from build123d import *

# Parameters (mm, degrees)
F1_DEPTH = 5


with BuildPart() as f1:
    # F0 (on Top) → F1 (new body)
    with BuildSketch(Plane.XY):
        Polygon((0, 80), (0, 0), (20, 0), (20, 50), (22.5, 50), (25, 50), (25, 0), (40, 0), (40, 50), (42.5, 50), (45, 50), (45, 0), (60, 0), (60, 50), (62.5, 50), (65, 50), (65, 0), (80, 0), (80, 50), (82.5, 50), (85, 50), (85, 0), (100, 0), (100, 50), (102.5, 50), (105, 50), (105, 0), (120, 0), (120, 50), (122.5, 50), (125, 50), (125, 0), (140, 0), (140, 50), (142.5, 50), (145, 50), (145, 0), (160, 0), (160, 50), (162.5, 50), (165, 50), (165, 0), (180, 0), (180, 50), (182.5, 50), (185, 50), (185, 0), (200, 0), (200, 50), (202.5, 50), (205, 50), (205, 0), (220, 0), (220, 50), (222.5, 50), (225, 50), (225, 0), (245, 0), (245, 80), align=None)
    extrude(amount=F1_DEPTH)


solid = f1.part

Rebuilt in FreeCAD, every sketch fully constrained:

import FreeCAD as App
import Part
import Sketcher

V = App.Vector

doc = App.newDocument("Part")
body = doc.addObject("PartDesign::Body", "Body")

sketch1 = doc.addObject("Sketcher::SketchObject", "Sketch")
body.addObject(sketch1)
sketch1.AttachmentSupport = (doc.XY_Plane, [""])
sketch1.MapMode = "FlatFace"
sketch1.addGeometry([
    Part.LineSegment(V(0, 80, 0), V(0, 0, 0)),
    Part.LineSegment(V(0, 0, 0), V(20, 0, 0)),
    Part.LineSegment(V(20, 0, 0), V(20, 50, 0)),
    Part.LineSegment(V(20, 50, 0), V(25, 50, 0)),
    Part.LineSegment(V(25, 50, 0), V(25, 0, 0)),
    Part.LineSegment(V(25, 0, 0), V(40, 0, 0)),
    Part.LineSegment(V(40, 0, 0), V(40, 50, 0)),
    Part.LineSegment(V(40, 50, 0), V(45, 50, 0)),
    Part.LineSegment(V(45, 50, 0), V(45, 0, 0)),
    Part.LineSegment(V(45, 0, 0), V(60, 0, 0)),
    Part.LineSegment(V(60, 0, 0), V(60, 50, 0)),
    Part.LineSegment(V(60, 50, 0), V(65, 50, 0)),
    Part.LineSegment(V(65, 50, 0), V(65, 0, 0)),
    Part.LineSegment(V(65, 0, 0), V(80, 0, 0)),
    Part.LineSegment(V(80, 0, 0), V(80, 50, 0)),
    Part.LineSegment(V(80, 50, 0), V(85, 50, 0)),
    Part.LineSegment(V(85, 50, 0), V(85, 0, 0)),
    Part.LineSegment(V(85, 0, 0), V(100, 0, 0)),
    Part.LineSegment(V(100, 0, 0), V(100, 50, 0)),
    Part.LineSegment(V(100, 50, 0), V(105, 50, 0)),
    Part.LineSegment(V(105, 50, 0), V(105, 0, 0)),
    Part.LineSegment(V(105, 0, 0), V(120, 0, 0)),
    Part.LineSegment(V(120, 0, 0), V(120, 50, 0)),
    Part.LineSegment(V(120, 50, 0), V(125, 50, 0)),
    Part.LineSegment(V(125, 50, 0), V(125, 0, 0)),
    Part.LineSegment(V(125, 0, 0), V(140, 0, 0)),
    Part.LineSegment(V(140, 0, 0), V(140, 50, 0)),
    Part.LineSegment(V(140, 50, 0), V(145, 50, 0)),
    Part.LineSegment(V(145, 50, 0), V(145, 0, 0)),
    Part.LineSegment(V(145, 0, 0), V(160, 0, 0)),
    Part.LineSegment(V(160, 0, 0), V(160, 50, 0)),
    Part.LineSegment(V(160, 50, 0), V(165, 50, 0)),
    Part.LineSegment(V(165, 50, 0), V(165, 0, 0)),
    Part.LineSegment(V(165, 0, 0), V(180, 0, 0)),
    Part.LineSegment(V(180, 0, 0), V(180, 50, 0)),
    Part.LineSegment(V(180, 50, 0), V(185, 50, 0)),
    Part.LineSegment(V(185, 50, 0), V(185, 0, 0)),
    Part.LineSegment(V(185, 0, 0), V(200, 0, 0)),
    Part.LineSegment(V(200, 0, 0), V(200, 50, 0)),
    Part.LineSegment(V(200, 50, 0), V(205, 50, 0)),
    Part.LineSegment(V(205, 50, 0), V(205, 0, 0)),
    Part.LineSegment(V(205, 0, 0), V(220, 0, 0)),
    Part.LineSegment(V(220, 0, 0), V(220, 50, 0)),
    Part.LineSegment(V(220, 50, 0), V(225, 50, 0)),
    Part.LineSegment(V(225, 50, 0), V(225, 0, 0)),
    Part.LineSegment(V(225, 0, 0), V(245, 0, 0)),
    Part.LineSegment(V(245, 0, 0), V(245, 80, 0)),
    Part.LineSegment(V(245, 80, 0), V(0, 80, 0)),
], False)
sketch1.addConstraint([
    Sketcher.Constraint("Coincident", 0, 2, 1, 1),
    Sketcher.Constraint("Coincident", 1, 2, 2, 1),
    Sketcher.Constraint("Coincident", 2, 2, 3, 1),
    Sketcher.Constraint("Coincident", 3, 2, 4, 1),
    Sketcher.Constraint("Coincident", 4, 2, 5, 1),
    Sketcher.Constraint("Coincident", 5, 2, 6, 1),
    Sketcher.Constraint("Coincident", 6, 2, 7, 1),
    Sketcher.Constraint("Coincident", 7, 2, 8, 1),
    Sketcher.Constraint("Coincident", 8, 2, 9, 1),
    Sketcher.Constraint("Coincident", 9, 2, 10, 1),
    Sketcher.Constraint("Coincident", 10, 2, 11, 1),
    Sketcher.Constraint("Coincident", 11, 2, 12, 1),
    Sketcher.Constraint("Coincident", 12, 2, 13, 1),
    Sketcher.Constraint("Coincident", 13, 2, 14, 1),
    Sketcher.Constraint("Coincident", 14, 2, 15, 1),
    Sketcher.Constraint("Coincident", 15, 2, 16, 1),
    Sketcher.Constraint("Coincident", 16, 2, 17, 1),
    Sketcher.Constraint("Coincident", 17, 2, 18, 1),
    Sketcher.Constraint("Coincident", 18, 2, 19, 1),
    Sketcher.Constraint("Coincident", 19, 2, 20, 1),
    Sketcher.Constraint("Coincident", 20, 2, 21, 1),
    Sketcher.Constraint("Coincident", 21, 2, 22, 1),
    Sketcher.Constraint("Coincident", 22, 2, 23, 1),
    Sketcher.Constraint("Coincident", 23, 2, 24, 1),
    Sketcher.Constraint("Coincident", 24, 2, 25, 1),
    Sketcher.Constraint("Coincident", 25, 2, 26, 1),
    Sketcher.Constraint("Coincident", 26, 2, 27, 1),
    Sketcher.Constraint("Coincident", 27, 2, 28, 1),
    Sketcher.Constraint("Coincident", 28, 2, 29, 1),
    Sketcher.Constraint("Coincident", 29, 2, 30, 1),
    Sketcher.Constraint("Coincident", 30, 2, 31, 1),
    Sketcher.Constraint("Coincident", 31, 2, 32, 1),
    Sketcher.Constraint("Coincident", 32, 2, 33, 1),
    Sketcher.Constraint("Coincident", 33, 2, 34, 1),
    Sketcher.Constraint("Coincident", 34, 2, 35, 1),
    Sketcher.Constraint("Coincident", 35, 2, 36, 1),
    Sketcher.Constraint("Coincident", 36, 2, 37, 1),
    Sketcher.Constraint("Coincident", 37, 2, 38, 1),
    Sketcher.Constraint("Coincident", 38, 2, 39, 1),
    Sketcher.Constraint("Coincident", 39, 2, 40, 1),
    Sketcher.Constraint("Coincident", 40, 2, 41, 1),
    Sketcher.Constraint("Coincident", 41, 2, 42, 1),
    Sketcher.Constraint("Coincident", 42, 2, 43, 1),
    Sketcher.Constraint("Coincident", 43, 2, 44, 1),
    Sketcher.Constraint("Coincident", 44, 2, 45, 1),
    Sketcher.Constraint("Coincident", 45, 2, 46, 1),
    Sketcher.Constraint("Coincident", 46, 2, 47, 1),
    Sketcher.Constraint("Coincident", 47, 2, 0, 1),
    Sketcher.Constraint("Vertical", 0),
    Sketcher.Constraint("Horizontal", 1),
    Sketcher.Constraint("Vertical", 2),
    Sketcher.Constraint("Horizontal", 3),
    Sketcher.Constraint("Vertical", 4),
    Sketcher.Constraint("Horizontal", 5),
    Sketcher.Constraint("Vertical", 6),
    Sketcher.Constraint("Horizontal", 7),
    Sketcher.Constraint("Vertical", 8),
    Sketcher.Constraint("Horizontal", 9),
    Sketcher.Constraint("Vertical", 10),
    Sketcher.Constraint("Horizontal", 11),
    Sketcher.Constraint("Vertical", 12),
    Sketcher.Constraint("Horizontal", 13),
    Sketcher.Constraint("Vertical", 14),
    Sketcher.Constraint("Horizontal", 15),
    Sketcher.Constraint("Vertical", 16),
    Sketcher.Constraint("Horizontal", 17),
    Sketcher.Constraint("Vertical", 18),
    Sketcher.Constraint("Horizontal", 19),
    Sketcher.Constraint("Vertical", 20),
    Sketcher.Constraint("Horizontal", 21),
    Sketcher.Constraint("Vertical", 22),
    Sketcher.Constraint("Horizontal", 23),
    Sketcher.Constraint("Vertical", 24),
    Sketcher.Constraint("Horizontal", 25),
    Sketcher.Constraint("Vertical", 26),
    Sketcher.Constraint("Horizontal", 27),
    Sketcher.Constraint("Vertical", 28),
    Sketcher.Constraint("Horizontal", 29),
    Sketcher.Constraint("Vertical", 30),
    Sketcher.Constraint("Horizontal", 31),
    Sketcher.Constraint("Vertical", 32),
    Sketcher.Constraint("Horizontal", 33),
    Sketcher.Constraint("Vertical", 34),
    Sketcher.Constraint("Horizontal", 35),
    Sketcher.Constraint("Vertical", 36),
    Sketcher.Constraint("Horizontal", 37),
    Sketcher.Constraint("Vertical", 38),
    Sketcher.Constraint("Horizontal", 39),
    Sketcher.Constraint("Vertical", 40),
    Sketcher.Constraint("Horizontal", 41),
    Sketcher.Constraint("Vertical", 42),
    Sketcher.Constraint("Horizontal", 43),
    Sketcher.Constraint("Vertical", 44),
    Sketcher.Constraint("Horizontal", 45),
    Sketcher.Constraint("Vertical", 46),
    Sketcher.Constraint("Horizontal", 47),
    Sketcher.Constraint("Coincident", 0, 2, -1, 1),
    Sketcher.Constraint("PointOnObject", 4, 2, -1),
    Sketcher.Constraint("PointOnObject", 8, 2, -1),
    Sketcher.Constraint("PointOnObject", 12, 2, -1),
    Sketcher.Constraint("PointOnObject", 16, 2, -1),
    Sketcher.Constraint("PointOnObject", 20, 2, -1),
    Sketcher.Constraint("PointOnObject", 24, 2, -1),
    Sketcher.Constraint("PointOnObject", 28, 2, -1),
    Sketcher.Constraint("PointOnObject", 32, 2, -1),
    Sketcher.Constraint("PointOnObject", 36, 2, -1),
    Sketcher.Constraint("PointOnObject", 40, 2, -1),
    Sketcher.Constraint("PointOnObject", 44, 2, -1),
    Sketcher.Constraint("Horizontal", 3, 2, 6, 2),
    Sketcher.Constraint("Horizontal", 7, 2, 10, 2),
    Sketcher.Constraint("Horizontal", 11, 2, 14, 2),
    Sketcher.Constraint("Horizontal", 15, 2, 18, 2),
    Sketcher.Constraint("Horizontal", 19, 2, 22, 2),
    Sketcher.Constraint("Horizontal", 23, 2, 26, 2),
    Sketcher.Constraint("Horizontal", 27, 2, 30, 2),
    Sketcher.Constraint("Horizontal", 31, 2, 34, 2),
    Sketcher.Constraint("Horizontal", 35, 2, 38, 2),
    Sketcher.Constraint("Horizontal", 39, 2, 42, 2),
    Sketcher.Constraint("Equal", 3, 7),
    Sketcher.Constraint("Equal", 5, 9),
    Sketcher.Constraint("Equal", 7, 11),
    Sketcher.Constraint("Equal", 9, 13),
    Sketcher.Constraint("Equal", 11, 15),
    Sketcher.Constraint("Equal", 13, 17),
    Sketcher.Constraint("Equal", 15, 19),
    Sketcher.Constraint("Equal", 17, 21),
    Sketcher.Constraint("Equal", 19, 23),
    Sketcher.Constraint("Equal", 21, 25),
    Sketcher.Constraint("Equal", 23, 27),
    Sketcher.Constraint("Equal", 25, 29),
    Sketcher.Constraint("Equal", 27, 31),
    Sketcher.Constraint("Equal", 29, 33),
    Sketcher.Constraint("Equal", 31, 35),
    Sketcher.Constraint("Equal", 33, 37),
    Sketcher.Constraint("Equal", 35, 39),
    Sketcher.Constraint("Equal", 37, 41),
    Sketcher.Constraint("Equal", 39, 43),
    Sketcher.Constraint("Equal", 1, 45),
    Sketcher.Constraint("DistanceX", 1, 1, 1, 2, 20.0),
    Sketcher.Constraint("DistanceX", 3, 1, 3, 2, 5.0),
    Sketcher.Constraint("DistanceX", 5, 1, 5, 2, 15.0),
    Sketcher.Constraint("DistanceY", 0, 2, 0, 1, 80.0),
    Sketcher.Constraint("DistanceY", 2, 1, 2, 2, 50.0),
])
pad1 = doc.addObject("PartDesign::Pad", "Pad")
body.addObject(pad1)
pad1.Profile = sketch1
pad1.Length = 5

doc.recompute()
